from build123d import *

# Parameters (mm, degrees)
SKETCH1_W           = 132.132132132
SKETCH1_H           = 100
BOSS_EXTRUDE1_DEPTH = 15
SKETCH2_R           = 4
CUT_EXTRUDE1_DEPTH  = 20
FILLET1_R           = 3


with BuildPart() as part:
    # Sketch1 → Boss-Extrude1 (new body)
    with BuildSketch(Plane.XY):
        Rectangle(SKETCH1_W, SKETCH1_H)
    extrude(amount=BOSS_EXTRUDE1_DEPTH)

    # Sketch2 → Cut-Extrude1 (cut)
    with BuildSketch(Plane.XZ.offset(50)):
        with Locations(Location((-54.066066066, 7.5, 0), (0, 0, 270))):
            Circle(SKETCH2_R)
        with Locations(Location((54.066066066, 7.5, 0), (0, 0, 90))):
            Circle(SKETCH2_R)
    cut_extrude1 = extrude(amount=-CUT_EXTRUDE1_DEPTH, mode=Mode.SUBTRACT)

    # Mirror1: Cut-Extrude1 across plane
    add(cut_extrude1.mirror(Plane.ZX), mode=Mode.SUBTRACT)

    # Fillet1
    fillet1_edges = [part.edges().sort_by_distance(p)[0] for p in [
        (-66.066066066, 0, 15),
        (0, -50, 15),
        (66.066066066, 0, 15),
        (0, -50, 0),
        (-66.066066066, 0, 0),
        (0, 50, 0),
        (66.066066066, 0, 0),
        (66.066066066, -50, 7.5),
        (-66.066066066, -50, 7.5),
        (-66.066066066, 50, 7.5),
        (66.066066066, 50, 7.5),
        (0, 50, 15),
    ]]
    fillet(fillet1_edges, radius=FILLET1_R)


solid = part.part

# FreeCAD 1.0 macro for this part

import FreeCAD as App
import Part
import Sketcher

V = App.Vector
Q = App.Units.Quantity


def edges_at(feature, points):
    """Names of the edges that pass closest to the given points."""
    edges = feature.Shape.Edges
    near = lambda p: min(range(len(edges)), key=lambda i: edges[i].distToShape(Part.Vertex(*p))[0])
    return sorted({f"Edge{near(p) + 1}" for p in points})

doc = App.newDocument("Part")
body = doc.addObject("PartDesign::Body", "Body")

sketch1 = body.newObject("Sketcher::SketchObject", "Sketch")
sketch1.AttachmentSupport = (doc.getObject("XY_Plane"), [""])
sketch1.MapMode = "FlatFace"
sketch1.addGeometry(Part.LineSegment(V(-66, 50, 0), V(-66, -50, 0)), False)
sketch1.addGeometry(Part.LineSegment(V(-66, -50, 0), V(66, -50, 0)), False)
sketch1.addGeometry(Part.LineSegment(V(66, -50, 0), V(66, 50, 0)), False)
sketch1.addGeometry(Part.LineSegment(V(66, 50, 0), V(-66, 50, 0)), False)
sketch1.addConstraint(Sketcher.Constraint("Coincident", 0, 2, 1, 1))
sketch1.addConstraint(Sketcher.Constraint("Coincident", 1, 2, 2, 1))
sketch1.addConstraint(Sketcher.Constraint("Coincident", 2, 2, 3, 1))
sketch1.addConstraint(Sketcher.Constraint("Coincident", 3, 2, 0, 1))
sketch1.addConstraint(Sketcher.Constraint("Vertical", 0))
sketch1.addConstraint(Sketcher.Constraint("Horizontal", 1))
sketch1.addConstraint(Sketcher.Constraint("Vertical", 2))
sketch1.addConstraint(Sketcher.Constraint("Horizontal", 3))
sketch1.addConstraint(Sketcher.Constraint("Symmetric", 0, 2, 2, 2, -1, 1))
sketch1.addConstraint(Sketcher.Constraint("DistanceY", 0, 2, 0, 1, Q("100 mm")))
sketch1.addConstraint(Sketcher.Constraint("DistanceX", 1, 1, 1, 2, Q("132.132132 mm")))
pad1 = body.newObject("PartDesign::Pad", "Pad")
pad1.Profile = sketch1
pad1.Length = 15

sketch2 = body.newObject("Sketcher::SketchObject", "Sketch001")
sketch2.AttachmentSupport = (doc.getObject("XZ_Plane"), [""])
sketch2.MapMode = "FlatFace"
sketch2.AttachmentOffset = App.Placement(V(0, 0, 50), App.Rotation())
sketch2.addGeometry(Part.Circle(V(-54.1, 7.5, 0), V(0, 0, 1), 4), False)
sketch2.addGeometry(Part.Circle(V(54.1, 7.5, 0), V(0, 0, 1), 4), False)
sketch2.addConstraint(Sketcher.Constraint("Equal", 0, 1))
sketch2.addConstraint(Sketcher.Constraint("Symmetric", 0, 3, 1, 3, -2))
sketch2.addConstraint(Sketcher.Constraint("Diameter", 0, Q("8 mm")))
sketch2.addConstraint(Sketcher.Constraint("DistanceY", -1, 1, 0, 3, Q("7.5 mm")))
sketch2.addConstraint(Sketcher.Constraint("DistanceX", 0, 3, -1, 1, Q("54.066066 mm")))
pocket1 = body.newObject("PartDesign::Pocket", "Pocket")
pocket1.Profile = sketch2
pocket1.Length = 20
doc.recompute()

mirrored = body.newObject("PartDesign::Mirrored", "Mirrored")
mirrored.Originals = [pocket1]
mirrored.MirrorPlane = (doc.getObject("XZ_Plane"), [""])
body.Tip = mirrored
doc.recompute()

fillet = body.newObject("PartDesign::Fillet", "Fillet")
fillet.Base = (mirrored, edges_at(mirrored, [
    (-66.066, 0, 15),
    (0, -50, 15),
    (66.066, 0, 15),
    (0, -50, 0),
    (-66.066, 0, 0),
    (0, 50, 0),
    (66.066, 0, 0),
    (66.066, -50, 7.5),
    (-66.066, -50, 7.5),
    (-66.066, 50, 7.5),
    (66.066, 50, 7.5),
    (0, 50, 15),
]))
fillet.Radius = 3

doc.recompute()
